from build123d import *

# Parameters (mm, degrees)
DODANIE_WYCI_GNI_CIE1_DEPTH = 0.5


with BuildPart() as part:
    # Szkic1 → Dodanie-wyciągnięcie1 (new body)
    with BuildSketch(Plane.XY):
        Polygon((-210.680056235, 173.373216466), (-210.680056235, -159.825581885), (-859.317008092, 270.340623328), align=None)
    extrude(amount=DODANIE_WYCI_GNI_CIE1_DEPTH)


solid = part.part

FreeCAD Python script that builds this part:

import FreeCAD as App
import Part
import Sketcher

V = App.Vector
Q = App.Units.Quantity


def add_polygon(sketch, points):
    """Adds a closed chain of lines whose ends are joined by coincident constraints."""
    first, n = sketch.GeometryCount, len(points)
    for a, b in zip(points, points[1:] + points[:1]):
        sketch.addGeometry(Part.LineSegment(App.Vector(*a, 0), App.Vector(*b, 0)), False)
    for i in range(n):
        sketch.addConstraint(Sketcher.Constraint("Coincident", first + i, 2, first + (i + 1) % n, 1))

doc = App.newDocument("Part")
body = doc.addObject("PartDesign::Body", "Body")

# Sketch on XY plane
sketch1 = body.newObject("Sketcher::SketchObject", "Sketch")
sketch1.AttachmentSupport = (doc.getObject("XY_Plane"), [""])
sketch1.MapMode = "FlatFace"
add_polygon(sketch1, [(-210.680056, -159.825582), (-210.680056, 173.373216), (-859.317008, 270.340623)])  # lines 0-2
sketch1.addConstraint([
    Sketcher.Constraint("Vertical", 0),
    Sketcher.Constraint("DistanceY", 0, 1, 0, 2, Q("333.198798 mm")),
    Sketcher.Constraint("Distance", 1, Q("655.844931 mm")),
    Sketcher.Constraint("DistanceX", 1, 2, -1, 1, Q("859.317008 mm")),
    Sketcher.Constraint("DistanceY", 2, 2, -1, 1, Q("159.825582 mm")),
    Sketcher.Constraint("DistanceX", 1, 2, 0, 2, Q("648.636952 mm")),
])
pad1 = body.newObject("PartDesign::Pad", "Pad")
pad1.Profile = sketch1
pad1.Length = 0.5

doc.recompute()
